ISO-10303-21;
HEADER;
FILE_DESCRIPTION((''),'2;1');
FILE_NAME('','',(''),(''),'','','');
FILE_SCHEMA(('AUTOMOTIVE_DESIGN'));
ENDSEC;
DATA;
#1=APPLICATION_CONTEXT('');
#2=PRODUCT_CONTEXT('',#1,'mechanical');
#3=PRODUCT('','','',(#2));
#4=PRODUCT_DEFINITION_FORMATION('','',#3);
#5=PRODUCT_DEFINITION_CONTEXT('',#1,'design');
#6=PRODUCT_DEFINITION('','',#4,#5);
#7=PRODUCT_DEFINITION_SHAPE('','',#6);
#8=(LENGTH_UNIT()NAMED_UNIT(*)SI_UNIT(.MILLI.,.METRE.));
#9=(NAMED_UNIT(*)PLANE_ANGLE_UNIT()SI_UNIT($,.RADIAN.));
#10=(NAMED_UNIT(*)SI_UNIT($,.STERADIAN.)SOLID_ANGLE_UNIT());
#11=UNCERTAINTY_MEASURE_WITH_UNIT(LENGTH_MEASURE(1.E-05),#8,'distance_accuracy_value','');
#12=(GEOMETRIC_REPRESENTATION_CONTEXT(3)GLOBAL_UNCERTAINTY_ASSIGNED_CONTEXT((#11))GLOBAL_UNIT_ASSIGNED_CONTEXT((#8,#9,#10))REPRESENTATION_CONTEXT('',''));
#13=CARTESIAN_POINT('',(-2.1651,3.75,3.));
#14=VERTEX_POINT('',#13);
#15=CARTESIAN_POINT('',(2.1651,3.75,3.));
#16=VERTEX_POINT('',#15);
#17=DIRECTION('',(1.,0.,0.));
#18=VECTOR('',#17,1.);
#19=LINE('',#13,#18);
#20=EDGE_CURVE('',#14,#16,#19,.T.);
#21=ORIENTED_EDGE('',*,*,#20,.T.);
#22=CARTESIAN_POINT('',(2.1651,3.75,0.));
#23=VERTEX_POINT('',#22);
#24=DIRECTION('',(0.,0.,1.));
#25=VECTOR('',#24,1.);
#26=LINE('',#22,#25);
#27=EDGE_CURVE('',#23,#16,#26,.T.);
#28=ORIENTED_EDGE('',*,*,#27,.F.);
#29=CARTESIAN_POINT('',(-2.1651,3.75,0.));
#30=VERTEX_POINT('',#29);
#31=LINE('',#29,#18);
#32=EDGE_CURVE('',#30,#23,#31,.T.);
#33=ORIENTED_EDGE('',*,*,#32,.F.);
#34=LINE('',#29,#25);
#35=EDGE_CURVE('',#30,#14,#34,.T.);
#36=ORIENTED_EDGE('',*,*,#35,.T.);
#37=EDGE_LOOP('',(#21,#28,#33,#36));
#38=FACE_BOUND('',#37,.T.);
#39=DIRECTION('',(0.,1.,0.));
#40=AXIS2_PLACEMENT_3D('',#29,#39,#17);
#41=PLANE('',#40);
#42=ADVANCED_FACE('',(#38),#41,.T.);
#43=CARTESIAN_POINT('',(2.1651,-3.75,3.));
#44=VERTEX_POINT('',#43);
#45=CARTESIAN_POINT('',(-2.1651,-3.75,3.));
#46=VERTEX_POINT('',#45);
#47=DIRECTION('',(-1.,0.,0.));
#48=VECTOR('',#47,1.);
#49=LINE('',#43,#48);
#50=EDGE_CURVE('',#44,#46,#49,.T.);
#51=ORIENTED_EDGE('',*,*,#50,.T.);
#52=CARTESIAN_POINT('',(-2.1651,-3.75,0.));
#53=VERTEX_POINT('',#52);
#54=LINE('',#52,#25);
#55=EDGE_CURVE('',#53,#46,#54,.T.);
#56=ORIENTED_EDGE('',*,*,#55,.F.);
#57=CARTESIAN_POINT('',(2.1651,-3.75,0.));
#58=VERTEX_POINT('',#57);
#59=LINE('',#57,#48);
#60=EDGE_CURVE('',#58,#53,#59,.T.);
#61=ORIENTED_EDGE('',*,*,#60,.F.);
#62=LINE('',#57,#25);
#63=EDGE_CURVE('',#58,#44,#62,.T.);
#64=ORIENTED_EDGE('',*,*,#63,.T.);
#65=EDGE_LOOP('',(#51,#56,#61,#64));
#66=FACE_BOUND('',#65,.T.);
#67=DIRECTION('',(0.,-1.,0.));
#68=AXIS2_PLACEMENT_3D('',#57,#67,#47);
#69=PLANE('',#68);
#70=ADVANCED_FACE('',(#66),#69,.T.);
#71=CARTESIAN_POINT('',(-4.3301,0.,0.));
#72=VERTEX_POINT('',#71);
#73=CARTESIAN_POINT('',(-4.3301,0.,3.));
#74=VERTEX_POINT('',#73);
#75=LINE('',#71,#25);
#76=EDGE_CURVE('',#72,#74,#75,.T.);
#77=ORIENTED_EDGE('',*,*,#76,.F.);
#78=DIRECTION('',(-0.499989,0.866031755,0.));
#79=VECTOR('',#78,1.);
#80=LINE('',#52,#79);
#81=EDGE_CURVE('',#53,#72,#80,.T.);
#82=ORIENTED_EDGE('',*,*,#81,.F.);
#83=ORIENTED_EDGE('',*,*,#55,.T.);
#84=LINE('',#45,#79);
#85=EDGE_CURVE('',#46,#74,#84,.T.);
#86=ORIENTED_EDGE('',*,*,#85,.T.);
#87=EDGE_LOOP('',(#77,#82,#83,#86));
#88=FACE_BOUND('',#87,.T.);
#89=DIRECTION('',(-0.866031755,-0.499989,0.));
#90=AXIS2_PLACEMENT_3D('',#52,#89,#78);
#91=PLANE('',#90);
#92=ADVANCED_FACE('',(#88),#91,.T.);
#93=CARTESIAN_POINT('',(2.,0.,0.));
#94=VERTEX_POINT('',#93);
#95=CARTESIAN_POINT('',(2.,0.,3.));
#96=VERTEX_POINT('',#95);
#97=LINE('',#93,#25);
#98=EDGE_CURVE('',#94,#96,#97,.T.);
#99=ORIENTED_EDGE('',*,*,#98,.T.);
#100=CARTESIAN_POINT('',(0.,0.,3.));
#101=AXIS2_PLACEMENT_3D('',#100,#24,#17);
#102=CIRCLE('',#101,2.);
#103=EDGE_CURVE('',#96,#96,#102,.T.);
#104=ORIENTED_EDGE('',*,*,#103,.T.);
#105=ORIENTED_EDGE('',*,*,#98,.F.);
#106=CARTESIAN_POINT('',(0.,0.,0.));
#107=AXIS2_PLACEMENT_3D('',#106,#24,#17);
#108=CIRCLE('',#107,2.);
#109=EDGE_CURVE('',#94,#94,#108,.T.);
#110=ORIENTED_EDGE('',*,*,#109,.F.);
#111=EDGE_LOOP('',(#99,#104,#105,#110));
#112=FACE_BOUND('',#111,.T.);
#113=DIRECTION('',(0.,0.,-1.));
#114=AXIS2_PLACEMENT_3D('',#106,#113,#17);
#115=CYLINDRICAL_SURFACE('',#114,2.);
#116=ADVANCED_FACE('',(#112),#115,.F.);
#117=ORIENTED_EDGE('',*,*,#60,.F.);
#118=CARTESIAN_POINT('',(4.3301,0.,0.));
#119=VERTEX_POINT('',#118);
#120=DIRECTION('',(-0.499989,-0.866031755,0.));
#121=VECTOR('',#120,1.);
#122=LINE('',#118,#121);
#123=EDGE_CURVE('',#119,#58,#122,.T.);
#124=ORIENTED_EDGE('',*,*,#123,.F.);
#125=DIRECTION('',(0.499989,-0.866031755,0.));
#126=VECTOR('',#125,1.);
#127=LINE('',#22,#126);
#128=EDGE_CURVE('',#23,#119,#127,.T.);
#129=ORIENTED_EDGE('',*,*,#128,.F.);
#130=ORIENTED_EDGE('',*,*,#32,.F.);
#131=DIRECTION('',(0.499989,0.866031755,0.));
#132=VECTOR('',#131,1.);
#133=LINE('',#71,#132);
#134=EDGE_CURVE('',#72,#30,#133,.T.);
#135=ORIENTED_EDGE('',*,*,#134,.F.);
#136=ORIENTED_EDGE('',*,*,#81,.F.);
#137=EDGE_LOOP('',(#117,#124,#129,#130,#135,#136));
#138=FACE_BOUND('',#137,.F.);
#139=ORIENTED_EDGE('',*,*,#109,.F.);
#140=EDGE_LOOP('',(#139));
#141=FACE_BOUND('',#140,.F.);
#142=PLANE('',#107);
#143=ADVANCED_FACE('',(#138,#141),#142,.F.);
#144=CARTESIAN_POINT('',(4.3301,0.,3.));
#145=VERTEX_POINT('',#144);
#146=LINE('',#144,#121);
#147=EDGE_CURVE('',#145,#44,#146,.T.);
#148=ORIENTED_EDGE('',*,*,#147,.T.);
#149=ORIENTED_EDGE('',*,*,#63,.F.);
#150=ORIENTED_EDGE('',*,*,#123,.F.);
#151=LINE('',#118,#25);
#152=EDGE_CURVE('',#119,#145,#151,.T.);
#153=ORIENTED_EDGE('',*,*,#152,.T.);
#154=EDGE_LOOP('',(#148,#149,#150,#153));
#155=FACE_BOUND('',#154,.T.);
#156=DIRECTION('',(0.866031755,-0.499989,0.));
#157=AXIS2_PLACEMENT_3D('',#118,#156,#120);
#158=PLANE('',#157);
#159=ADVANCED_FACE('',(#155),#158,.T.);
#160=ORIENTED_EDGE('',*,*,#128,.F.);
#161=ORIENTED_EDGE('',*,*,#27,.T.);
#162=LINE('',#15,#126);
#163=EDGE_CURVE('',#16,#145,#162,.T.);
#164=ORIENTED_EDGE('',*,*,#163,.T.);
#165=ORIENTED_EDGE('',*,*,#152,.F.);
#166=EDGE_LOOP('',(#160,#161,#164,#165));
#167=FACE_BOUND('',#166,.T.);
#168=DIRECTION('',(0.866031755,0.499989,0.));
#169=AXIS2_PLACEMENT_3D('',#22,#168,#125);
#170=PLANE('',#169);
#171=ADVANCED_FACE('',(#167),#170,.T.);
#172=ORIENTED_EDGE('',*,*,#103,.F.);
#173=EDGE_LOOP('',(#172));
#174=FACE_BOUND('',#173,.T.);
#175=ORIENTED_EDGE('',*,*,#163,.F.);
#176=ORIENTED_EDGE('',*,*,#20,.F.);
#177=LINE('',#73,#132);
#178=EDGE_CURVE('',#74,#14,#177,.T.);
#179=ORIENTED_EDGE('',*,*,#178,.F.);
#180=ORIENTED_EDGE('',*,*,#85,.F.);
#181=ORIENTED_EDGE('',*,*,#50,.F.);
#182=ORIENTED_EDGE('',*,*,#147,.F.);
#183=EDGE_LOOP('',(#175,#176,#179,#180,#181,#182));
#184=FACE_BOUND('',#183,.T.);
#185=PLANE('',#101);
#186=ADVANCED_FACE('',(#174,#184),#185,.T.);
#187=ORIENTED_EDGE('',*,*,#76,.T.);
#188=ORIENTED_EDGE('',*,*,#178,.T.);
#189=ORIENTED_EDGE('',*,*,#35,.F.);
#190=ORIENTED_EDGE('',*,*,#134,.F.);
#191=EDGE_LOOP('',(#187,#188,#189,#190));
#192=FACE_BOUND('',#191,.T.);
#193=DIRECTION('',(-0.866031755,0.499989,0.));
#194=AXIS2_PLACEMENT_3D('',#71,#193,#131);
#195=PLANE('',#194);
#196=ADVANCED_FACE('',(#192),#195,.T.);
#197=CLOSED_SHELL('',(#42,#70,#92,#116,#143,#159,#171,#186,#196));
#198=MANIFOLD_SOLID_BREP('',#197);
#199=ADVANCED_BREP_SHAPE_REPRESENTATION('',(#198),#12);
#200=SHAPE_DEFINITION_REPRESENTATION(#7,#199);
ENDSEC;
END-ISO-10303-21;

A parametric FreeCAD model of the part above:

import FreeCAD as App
import Part
import Sketcher

V = App.Vector
Q = App.Units.Quantity


def add_polygon(sketch, points):
    """Adds a closed chain of lines whose ends are joined by coincident constraints."""
    first, n = sketch.GeometryCount, len(points)
    for a, b in zip(points, points[1:] + points[:1]):
        sketch.addGeometry(Part.LineSegment(App.Vector(*a, 0), App.Vector(*b, 0)), False)
    for i in range(n):
        sketch.addConstraint(Sketcher.Constraint("Coincident", first + i, 2, first + (i + 1) % n, 1))

doc = App.newDocument("Part")
body = doc.addObject("PartDesign::Body", "Body")

# Sketch on XY plane
sketch1 = body.newObject("Sketcher::SketchObject", "Sketch")
sketch1.AttachmentSupport = (doc.getObject("XY_Plane"), [""])
sketch1.MapMode = "FlatFace"
add_polygon(sketch1, [(-2.2, -3.8), (2.2, -3.8), (4.3, 0), (2.2, 3.8), (-2.2, 3.8), (-4.3, 0)])  # lines 0-5
sketch1.addGeometry(Part.Circle(V(0, 0, 0), V(0, 0, 1), 2), False)  # 6
sketch1.addConstraint([
    Sketcher.Constraint("Horizontal", 0),
    Sketcher.Constraint("Horizontal", 3),
    Sketcher.Constraint("Coincident", 6, 3, -1, 1),
    Sketcher.Constraint("Symmetric", 0, 2, 3, 2, -1, 1),
    Sketcher.Constraint("Symmetric", 1, 2, 4, 2, -1, 1),
    Sketcher.Constraint("PointOnObject", 1, 2, -1),
    Sketcher.Constraint("Parallel", 2, 5),
    Sketcher.Constraint("Vertical", 0, 2, 2, 2),
    Sketcher.Constraint("Diameter", 6, 4.0),
    Sketcher.Constraint("DistanceY", 0, 2, 2, 2, 7.5),
    Sketcher.Constraint("Angle", 1, Q("60.0007 deg")),
    Sketcher.Constraint("DistanceX", -1, 1, 1, 2, 4.33),
])
pad1 = body.newObject("PartDesign::Pad", "Pad")
pad1.Profile = sketch1
pad1.Length = 3

doc.recompute()
